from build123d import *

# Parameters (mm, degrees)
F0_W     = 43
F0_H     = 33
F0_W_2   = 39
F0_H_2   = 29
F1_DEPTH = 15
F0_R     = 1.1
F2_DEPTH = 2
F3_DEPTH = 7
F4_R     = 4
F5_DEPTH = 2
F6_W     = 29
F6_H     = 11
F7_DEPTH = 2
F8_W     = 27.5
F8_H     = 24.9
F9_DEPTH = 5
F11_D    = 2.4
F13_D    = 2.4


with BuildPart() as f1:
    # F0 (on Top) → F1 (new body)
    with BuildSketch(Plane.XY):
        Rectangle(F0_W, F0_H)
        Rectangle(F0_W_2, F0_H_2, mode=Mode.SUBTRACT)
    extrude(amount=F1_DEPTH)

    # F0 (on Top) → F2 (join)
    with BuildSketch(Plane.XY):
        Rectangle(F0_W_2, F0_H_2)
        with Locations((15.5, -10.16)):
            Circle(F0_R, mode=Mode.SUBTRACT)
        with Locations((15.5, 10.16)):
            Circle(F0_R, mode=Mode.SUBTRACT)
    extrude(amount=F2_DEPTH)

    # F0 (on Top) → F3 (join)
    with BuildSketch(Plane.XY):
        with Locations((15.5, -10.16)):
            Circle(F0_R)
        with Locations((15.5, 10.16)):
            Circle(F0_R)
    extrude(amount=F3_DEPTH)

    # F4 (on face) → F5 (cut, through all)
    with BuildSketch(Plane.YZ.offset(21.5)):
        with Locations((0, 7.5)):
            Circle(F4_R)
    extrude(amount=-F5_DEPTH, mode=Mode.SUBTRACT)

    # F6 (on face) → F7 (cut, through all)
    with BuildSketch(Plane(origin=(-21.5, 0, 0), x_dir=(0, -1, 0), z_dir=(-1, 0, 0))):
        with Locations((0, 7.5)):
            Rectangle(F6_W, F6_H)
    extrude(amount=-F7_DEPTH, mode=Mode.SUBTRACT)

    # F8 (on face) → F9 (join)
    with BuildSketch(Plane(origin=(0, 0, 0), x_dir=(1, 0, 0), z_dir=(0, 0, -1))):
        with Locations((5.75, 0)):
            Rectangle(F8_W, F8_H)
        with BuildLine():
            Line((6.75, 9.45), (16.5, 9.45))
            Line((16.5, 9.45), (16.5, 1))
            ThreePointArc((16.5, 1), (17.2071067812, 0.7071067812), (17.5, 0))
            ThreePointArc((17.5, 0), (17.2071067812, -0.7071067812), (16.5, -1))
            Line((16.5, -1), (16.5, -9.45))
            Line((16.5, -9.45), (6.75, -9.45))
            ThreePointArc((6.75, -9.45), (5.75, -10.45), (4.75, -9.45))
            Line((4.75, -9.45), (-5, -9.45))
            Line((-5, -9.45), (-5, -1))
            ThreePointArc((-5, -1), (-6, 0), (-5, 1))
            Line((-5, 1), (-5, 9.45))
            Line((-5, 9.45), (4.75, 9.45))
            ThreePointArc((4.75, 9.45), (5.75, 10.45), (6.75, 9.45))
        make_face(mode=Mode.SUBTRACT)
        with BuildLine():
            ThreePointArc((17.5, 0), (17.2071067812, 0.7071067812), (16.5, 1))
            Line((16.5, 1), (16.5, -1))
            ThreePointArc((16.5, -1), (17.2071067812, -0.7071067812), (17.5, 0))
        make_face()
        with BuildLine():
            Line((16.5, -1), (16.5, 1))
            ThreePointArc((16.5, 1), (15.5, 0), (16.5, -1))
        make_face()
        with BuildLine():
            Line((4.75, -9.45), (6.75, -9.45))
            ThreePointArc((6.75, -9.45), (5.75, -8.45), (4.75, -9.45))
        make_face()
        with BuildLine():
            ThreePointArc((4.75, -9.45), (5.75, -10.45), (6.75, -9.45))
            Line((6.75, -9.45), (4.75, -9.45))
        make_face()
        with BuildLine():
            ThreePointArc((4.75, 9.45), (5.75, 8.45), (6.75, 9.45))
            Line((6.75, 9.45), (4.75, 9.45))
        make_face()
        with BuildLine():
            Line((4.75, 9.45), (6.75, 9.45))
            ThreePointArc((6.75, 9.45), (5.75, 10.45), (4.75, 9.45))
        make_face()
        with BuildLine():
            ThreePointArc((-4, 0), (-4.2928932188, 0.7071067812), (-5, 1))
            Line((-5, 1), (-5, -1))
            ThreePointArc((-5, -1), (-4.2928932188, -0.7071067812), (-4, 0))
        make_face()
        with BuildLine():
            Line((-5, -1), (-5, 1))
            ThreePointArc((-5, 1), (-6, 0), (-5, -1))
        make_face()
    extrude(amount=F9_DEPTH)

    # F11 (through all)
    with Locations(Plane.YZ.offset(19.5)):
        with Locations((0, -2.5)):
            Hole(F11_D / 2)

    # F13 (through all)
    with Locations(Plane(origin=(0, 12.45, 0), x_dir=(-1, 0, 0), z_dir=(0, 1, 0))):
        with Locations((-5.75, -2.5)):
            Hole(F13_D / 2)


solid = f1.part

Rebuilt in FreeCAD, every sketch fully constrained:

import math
import FreeCAD as App
import Part
import Sketcher

V = App.Vector

doc = App.newDocument("Part")
body = doc.addObject("PartDesign::Body", "Body")

sketch1 = body.newObject("Sketcher::SketchObject", "Sketch")
sketch1.AttachmentSupport = (doc.getObject("XY_Plane"), [""])
sketch1.MapMode = "FlatFace"
sketch1.addGeometry([
    Part.LineSegment(V(-22, 16, 0), V(-22, -16, 0)),
    Part.LineSegment(V(-22, -16, 0), V(22, -16, 0)),
    Part.LineSegment(V(22, -16, 0), V(22, 16, 0)),
    Part.LineSegment(V(22, 16, 0), V(-22, 16, 0)),
    Part.LineSegment(V(20, -14, 0), V(-20, -14, 0)),
    Part.LineSegment(V(-20, -14, 0), V(-20, 14, 0)),
    Part.LineSegment(V(-20, 14, 0), V(20, 14, 0)),
    Part.LineSegment(V(20, 14, 0), V(20, -14, 0)),
], False)
sketch1.addConstraint([
    Sketcher.Constraint("Coincident", 0, 2, 1, 1),
    Sketcher.Constraint("Coincident", 1, 2, 2, 1),
    Sketcher.Constraint("Coincident", 2, 2, 3, 1),
    Sketcher.Constraint("Coincident", 3, 2, 0, 1),
    Sketcher.Constraint("Coincident", 4, 2, 5, 1),
    Sketcher.Constraint("Coincident", 5, 2, 6, 1),
    Sketcher.Constraint("Coincident", 6, 2, 7, 1),
    Sketcher.Constraint("Coincident", 7, 2, 4, 1),
    Sketcher.Constraint("Vertical", 0),
    Sketcher.Constraint("Horizontal", 1),
    Sketcher.Constraint("Vertical", 2),
    Sketcher.Constraint("Horizontal", 3),
    Sketcher.Constraint("Horizontal", 4),
    Sketcher.Constraint("Vertical", 5),
    Sketcher.Constraint("Horizontal", 6),
    Sketcher.Constraint("Vertical", 7),
    Sketcher.Constraint("Symmetric", 0, 2, 2, 2, -1, 1),
    Sketcher.Constraint("Symmetric", 4, 2, 6, 2, -1, 1),
    Sketcher.Constraint("DistanceX", 1, 1, 1, 2, 43.0),
    Sketcher.Constraint("DistanceX", 4, 2, 4, 1, 39.0),
    Sketcher.Constraint("DistanceY", 0, 2, 0, 1, 33.0),
    Sketcher.Constraint("DistanceY", 5, 1, 5, 2, 29.0),
])
pad1 = body.newObject("PartDesign::Pad", "Pad")
pad1.Profile = sketch1
pad1.Length = 15

sketch2 = body.newObject("Sketcher::SketchObject", "Sketch001")
sketch2.AttachmentSupport = (doc.getObject("XY_Plane"), [""])
sketch2.MapMode = "FlatFace"
sketch2.addGeometry([
    Part.LineSegment(V(-19.5, 14.5, 0), V(-19.5, -14.5, 0)),
    Part.LineSegment(V(-19.5, -14.5, 0), V(19.5, -14.5, 0)),
    Part.LineSegment(V(19.5, -14.5, 0), V(19.5, 14.5, 0)),
    Part.LineSegment(V(19.5, 14.5, 0), V(-19.5, 14.5, 0)),
    Part.Circle(V(15.5, -10.2, 0), V(0, 0, 1), 1.1),
    Part.Circle(V(15.5, 10.2, 0), V(0, 0, 1), 1.1),
], False)
sketch2.addConstraint([
    Sketcher.Constraint("Coincident", 0, 2, 1, 1),
    Sketcher.Constraint("Coincident", 1, 2, 2, 1),
    Sketcher.Constraint("Coincident", 2, 2, 3, 1),
    Sketcher.Constraint("Coincident", 3, 2, 0, 1),
    Sketcher.Constraint("Vertical", 0),
    Sketcher.Constraint("Horizontal", 1),
    Sketcher.Constraint("Vertical", 2),
    Sketcher.Constraint("Horizontal", 3),
    Sketcher.Constraint("Equal", 4, 5),
    Sketcher.Constraint("Symmetric", 0, 2, 2, 2, -1, 1),
    Sketcher.Constraint("Symmetric", 4, 3, 5, 3, -1),
    Sketcher.Constraint("Diameter", 4, 2.2),
    Sketcher.Constraint("DistanceX", 1, 1, 1, 2, 39.0),
    Sketcher.Constraint("DistanceY", 0, 2, 0, 1, 29.0),
    Sketcher.Constraint("DistanceX", 0, 2, 4, 3, 35.0),
    Sketcher.Constraint("DistanceY", 4, 3, -1, 1, 10.16),
])
pad2 = body.newObject("PartDesign::Pad", "Pad001")
pad2.Profile = sketch2
pad2.Length = 2

sketch3 = body.newObject("Sketcher::SketchObject", "Sketch002")
sketch3.AttachmentSupport = (doc.getObject("XY_Plane"), [""])
sketch3.MapMode = "FlatFace"
sketch3.addGeometry([
    Part.Circle(V(15.5, -10.2, 0), V(0, 0, 1), 1.1),
    Part.Circle(V(15.5, 10.2, 0), V(0, 0, 1), 1.1),
], False)
sketch3.addConstraint([
    Sketcher.Constraint("Equal", 0, 1),
    Sketcher.Constraint("Symmetric", 0, 3, 1, 3, -1),
    Sketcher.Constraint("Diameter", 0, 2.2),
    Sketcher.Constraint("DistanceX", -1, 1, 0, 3, 15.5),
    Sketcher.Constraint("DistanceY", 0, 3, -1, 1, 10.16),
])
pad3 = body.newObject("PartDesign::Pad", "Pad002")
pad3.Profile = sketch3
pad3.Length = 7

sketch4 = body.newObject("Sketcher::SketchObject", "Sketch003")
sketch4.AttachmentSupport = (doc.getObject("YZ_Plane"), [""])
sketch4.MapMode = "FlatFace"
sketch4.AttachmentOffset = App.Placement(V(0, 0, 21.5), App.Rotation())
sketch4.addGeometry(Part.Circle(V(0, 7.5, 0), V(0, 0, 1), 4), False)
sketch4.addConstraint([
    Sketcher.Constraint("PointOnObject", 0, 3, -2),
    Sketcher.Constraint("Diameter", 0, 8.0),
    Sketcher.Constraint("DistanceY", -1, 1, 0, 3, 7.5),
])
pocket1 = body.newObject("PartDesign::Pocket", "Pocket")
pocket1.Profile = sketch4
pocket1.Length = 2

sketch5 = body.newObject("Sketcher::SketchObject", "Sketch004")
sketch5.AttachmentSupport = (doc.getObject("YZ_Plane"), [""])
sketch5.MapMode = "FlatFace"
sketch5.AttachmentOffset = App.Placement(V(0, 0, -21.5), App.Rotation())
sketch5.addGeometry([
    Part.LineSegment(V(14, 13, 0), V(14, 2, 0)),
    Part.LineSegment(V(14, 2, 0), V(-14, 2, 0)),
    Part.LineSegment(V(-14, 2, 0), V(-14, 13, 0)),
    Part.LineSegment(V(-14, 13, 0), V(14, 13, 0)),
], False)
sketch5.addConstraint([
    Sketcher.Constraint("Coincident", 0, 2, 1, 1),
    Sketcher.Constraint("Coincident", 1, 2, 2, 1),
    Sketcher.Constraint("Coincident", 2, 2, 3, 1),
    Sketcher.Constraint("Coincident", 3, 2, 0, 1),
    Sketcher.Constraint("Vertical", 0),
    Sketcher.Constraint("Horizontal", 1),
    Sketcher.Constraint("Vertical", 2),
    Sketcher.Constraint("Horizontal", 3),
    Sketcher.Constraint("DistanceX", 1, 2, 1, 1, 29.0),
    Sketcher.Constraint("DistanceY", 0, 2, 0, 1, 11.0),
    Sketcher.Constraint("DistanceY", -1, 1, 0, 2, 2.0),
    Sketcher.Constraint("DistanceX", -1, 1, 0, 2, 14.5),
])
pocket2 = body.newObject("PartDesign::Pocket", "Pocket001")
pocket2.Profile = sketch5
pocket2.Length = 2
pocket2.Reversed = True

sketch6 = body.newObject("Sketcher::SketchObject", "Sketch005")
sketch6.AttachmentSupport = (doc.getObject("XY_Plane"), [""])
sketch6.MapMode = "FlatFace"
sketch6.addGeometry([
    Part.LineSegment(V(-8, -12.4, 0), V(-8, 12.4, 0)),
    Part.LineSegment(V(-8, 12.4, 0), V(19.5, 12.4, 0)),
    Part.LineSegment(V(19.5, 12.4, 0), V(19.5, -12.4, 0)),
    Part.LineSegment(V(19.5, -12.4, 0), V(-8, -12.4, 0)),
    Part.LineSegment(V(6.8, -9.4, 0), V(16.5, -9.4, 0)),
    Part.LineSegment(V(16.5, -9.4, 0), V(16.5, -1, 0)),
    Part.ArcOfCircle(Part.Circle(V(16.5, 0, 0), V(0, 0, 1), 1), math.radians(90), math.radians(270)),
    Part.LineSegment(V(16.5, 1, 0), V(16.5, 9.4, 0)),
    Part.LineSegment(V(16.5, 9.4, 0), V(6.8, 9.4, 0)),
    Part.ArcOfCircle(Part.Circle(V(5.8, 9.4, 0), V(0, 0, 1), 1), math.radians(180), math.radians(360)),
    Part.LineSegment(V(4.8, 9.4, 0), V(-5, 9.4, 0)),
    Part.LineSegment(V(-5, 9.4, 0), V(-5, 1, 0)),
    Part.ArcOfCircle(Part.Circle(V(-5, 0, 0), V(0, 0, 1), 1), math.radians(0), math.radians(90)),
    Part.ArcOfCircle(Part.Circle(V(-5, 0, 0), V(0, 0, 1), 1), math.radians(-90), math.radians(0)),
    Part.LineSegment(V(-5, -1, 0), V(-5, -9.4, 0)),
    Part.LineSegment(V(-5, -9.4, 0), V(4.8, -9.4, 0)),
    Part.ArcOfCircle(Part.Circle(V(5.8, -9.4, 0), V(0, 0, 1), 1), math.radians(0), math.radians(180)),
], False)
sketch6.addConstraint([
    Sketcher.Constraint("Coincident", 0, 2, 1, 1),
    Sketcher.Constraint("Coincident", 1, 2, 2, 1),
    Sketcher.Constraint("Coincident", 2, 2, 3, 1),
    Sketcher.Constraint("Coincident", 3, 2, 0, 1),
    Sketcher.Constraint("Coincident", 4, 2, 5, 1),
    Sketcher.Constraint("Coincident", 5, 2, 6, 2),
    Sketcher.Constraint("Coincident", 6, 1, 7, 1),
    Sketcher.Constraint("Coincident", 7, 2, 8, 1),
    Sketcher.Constraint("Coincident", 8, 2, 9, 2),
    Sketcher.Constraint("Coincident", 9, 1, 10, 1),
    Sketcher.Constraint("Coincident", 10, 2, 11, 1),
    Sketcher.Constraint("Coincident", 11, 2, 12, 2),
    Sketcher.Constraint("Tangent", 12, 1, 13, 2),
    Sketcher.Constraint("Coincident", 13, 1, 14, 1),
    Sketcher.Constraint("Coincident", 14, 2, 15, 1),
    Sketcher.Constraint("Coincident", 15, 2, 16, 2),
    Sketcher.Constraint("Coincident", 16, 1, 4, 1),
    Sketcher.Constraint("Vertical", 0),
    Sketcher.Constraint("Horizontal", 1),
    Sketcher.Constraint("Vertical", 2),
    Sketcher.Constraint("Horizontal", 3),
    Sketcher.Constraint("Horizontal", 4),
    Sketcher.Constraint("Vertical", 5),
    Sketcher.Constraint("Vertical", 7),
    Sketcher.Constraint("Horizontal", 8),
    Sketcher.Constraint("Horizontal", 10),
    Sketcher.Constraint("Vertical", 11),
    Sketcher.Constraint("Vertical", 14),
    Sketcher.Constraint("Horizontal", 15),
    Sketcher.Constraint("Equal", 6, 9),
    Sketcher.Constraint("Equal", 9, 12),
    Sketcher.Constraint("Equal", 12, 13),
    Sketcher.Constraint("Equal", 13, 16),
    Sketcher.Constraint("Symmetric", 9, 3, 16, 3, -1),
    Sketcher.Constraint("Symmetric", 5, 2, 6, 1, -1),
    Sketcher.Constraint("Symmetric", 11, 2, 13, 1, -1),
    Sketcher.Constraint("PointOnObject", 12, 1, -1),
    Sketcher.Constraint("Horizontal", 16, 3, 4, 2),
    Sketcher.Constraint("Horizontal", 9, 3, 7, 2),
    Sketcher.Constraint("Horizontal", 8, 2, 9, 1),
    Sketcher.Constraint("Horizontal", 4, 2, 14, 2),
    Sketcher.Constraint("Vertical", 6, 3, 4, 2),
    Sketcher.Constraint("Vertical", 13, 3, 10, 2),
    Sketcher.Constraint("Equal", 8, 10),
    Sketcher.Constraint("Radius", 6, 1.0),
    Sketcher.Constraint("DistanceX", 1, 1, 1, 2, 27.5),
    Sketcher.Constraint("DistanceY", 0, 1, 0, 2, 24.9),
    Sketcher.Constraint("DistanceX", 12, 3, -1, 1, 5.0),
    Sketcher.Constraint("DistanceX", 0, 2, -1, 1, 8.0),
    Sketcher.Constraint("DistanceY", 9, 3, 0, 2, 3.0),
    Sketcher.Constraint("DistanceX", 6, 3, 1, 2, 3.0),
    Sketcher.Constraint("DistanceY", 2, 2, 16, 3, 3.0),
])
pad4 = body.newObject("PartDesign::Pad", "Pad003")
pad4.Profile = sketch6
pad4.Length = 5
pad4.Reversed = True

sketch7 = body.newObject("Sketcher::SketchObject", "Sketch006")
sketch7.AttachmentSupport = (doc.getObject("YZ_Plane"), [""])
sketch7.MapMode = "FlatFace"
sketch7.AttachmentOffset = App.Placement(V(0, 0, 19.5), App.Rotation())
sketch7.addGeometry(Part.Circle(V(0, -2.5, 0), V(0, 0, 1), 1.2), False)
sketch7.addConstraint([
    Sketcher.Constraint("PointOnObject", 0, 3, -2),
    Sketcher.Constraint("Diameter", 0, 2.4),
    Sketcher.Constraint("DistanceY", 0, 3, -1, 1, 2.5),
])
doc.recompute()
hole = body.newObject("PartDesign::Hole", "Hole")
hole.Profile = sketch7
hole.ThreadType = "None"
hole.Diameter = 2.4
hole.DepthType = "ThroughAll"

sketch8 = body.newObject("Sketcher::SketchObject", "Sketch007")
sketch8.AttachmentSupport = (doc.getObject("XZ_Plane"), [""])
sketch8.MapMode = "FlatFace"
sketch8.AttachmentOffset = App.Placement(V(0, 0, -12.45), App.Rotation())
sketch8.addGeometry(Part.Circle(V(5.8, -2.5, 0), V(0, 0, 1), 1.2), False)
sketch8.addConstraint([
    Sketcher.Constraint("Diameter", 0, 2.4),
    Sketcher.Constraint("DistanceY", 0, 3, -1, 1, 2.5),
    Sketcher.Constraint("DistanceX", -1, 1, 0, 3, 5.75),
])
doc.recompute()
hole2 = body.newObject("PartDesign::Hole", "Hole001")
hole2.Profile = sketch8
hole2.ThreadType = "None"
hole2.Diameter = 2.4
hole2.DepthType = "ThroughAll"
hole2.Reversed = True

doc.recompute()
